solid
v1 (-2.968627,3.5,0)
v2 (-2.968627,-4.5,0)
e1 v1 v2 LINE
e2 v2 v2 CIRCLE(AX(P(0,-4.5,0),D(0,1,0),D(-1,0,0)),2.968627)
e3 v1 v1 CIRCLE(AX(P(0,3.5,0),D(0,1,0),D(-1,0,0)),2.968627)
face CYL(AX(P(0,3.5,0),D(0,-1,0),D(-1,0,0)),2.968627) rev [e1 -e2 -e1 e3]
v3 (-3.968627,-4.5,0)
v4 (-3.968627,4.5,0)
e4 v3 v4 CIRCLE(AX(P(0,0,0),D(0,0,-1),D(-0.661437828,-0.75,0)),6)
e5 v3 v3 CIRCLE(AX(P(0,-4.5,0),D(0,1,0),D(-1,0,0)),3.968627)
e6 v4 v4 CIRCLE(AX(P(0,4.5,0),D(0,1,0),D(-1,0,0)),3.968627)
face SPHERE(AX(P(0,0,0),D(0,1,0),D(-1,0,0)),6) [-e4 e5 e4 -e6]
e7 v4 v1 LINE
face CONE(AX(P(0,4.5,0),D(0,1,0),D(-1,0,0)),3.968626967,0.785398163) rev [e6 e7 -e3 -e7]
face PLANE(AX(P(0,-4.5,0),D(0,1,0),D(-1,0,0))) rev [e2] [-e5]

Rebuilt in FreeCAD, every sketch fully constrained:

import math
import FreeCAD as App
import Part
import Sketcher

V = App.Vector
Q = App.Units.Quantity

doc = App.newDocument("Part")
body = doc.addObject("PartDesign::Body", "Body")

# Sketch on XY plane
sketch1 = body.newObject("Sketcher::SketchObject", "Sketch")
sketch1.AttachmentSupport = (doc.getObject("XY_Plane"), [""])
sketch1.MapMode = "FlatFace"
sketch1.addGeometry(Part.LineSegment(V(-2.968627, 3.5, 0), V(-3.968627, 4.5, 0)), False)
sketch1.addGeometry(Part.ArcOfCircle(Part.Circle(V(0, 0, 0), V(0, 0, 1), 6), math.radians(131.409622), math.radians(228.590378)), False)
sketch1.addGeometry(Part.LineSegment(V(-3.968627, -4.5, 0), V(-2.968627, -4.5, 0)), False)
sketch1.addGeometry(Part.LineSegment(V(-2.968627, -4.5, 0), V(-2.968627, 3.5, 0)), False)
sketch1.addConstraint(Sketcher.Constraint("Coincident", 0, 2, 1, 1))
sketch1.addConstraint(Sketcher.Constraint("Coincident", 1, 2, 2, 1))
sketch1.addConstraint(Sketcher.Constraint("Coincident", 2, 2, 3, 1))
sketch1.addConstraint(Sketcher.Constraint("Coincident", 3, 2, 0, 1))
sketch1.addConstraint(Sketcher.Constraint("Horizontal", 2))
sketch1.addConstraint(Sketcher.Constraint("Vertical", 3))
sketch1.addConstraint(Sketcher.Constraint("Coincident", 1, 3, -1, 1))
sketch1.addConstraint(Sketcher.Constraint("Vertical", 0, 2, 1, 2))
sketch1.addConstraint(Sketcher.Constraint("Radius", 1, 6.0))
sketch1.addConstraint(Sketcher.Constraint("DistanceX", 2, 1, 2, 2, 1.0))
sketch1.addConstraint(Sketcher.Constraint("DistanceY", 3, 1, 3, 2, 8.0))
sketch1.addConstraint(Sketcher.Constraint("Angle", 0, Q("135 deg")))
revolution = body.newObject("PartDesign::Revolution", "Revolution")
revolution.Profile = sketch1
revolution.ReferenceAxis = (sketch1, ["V_Axis"])
revolution.Angle = 360

doc.recompute()
